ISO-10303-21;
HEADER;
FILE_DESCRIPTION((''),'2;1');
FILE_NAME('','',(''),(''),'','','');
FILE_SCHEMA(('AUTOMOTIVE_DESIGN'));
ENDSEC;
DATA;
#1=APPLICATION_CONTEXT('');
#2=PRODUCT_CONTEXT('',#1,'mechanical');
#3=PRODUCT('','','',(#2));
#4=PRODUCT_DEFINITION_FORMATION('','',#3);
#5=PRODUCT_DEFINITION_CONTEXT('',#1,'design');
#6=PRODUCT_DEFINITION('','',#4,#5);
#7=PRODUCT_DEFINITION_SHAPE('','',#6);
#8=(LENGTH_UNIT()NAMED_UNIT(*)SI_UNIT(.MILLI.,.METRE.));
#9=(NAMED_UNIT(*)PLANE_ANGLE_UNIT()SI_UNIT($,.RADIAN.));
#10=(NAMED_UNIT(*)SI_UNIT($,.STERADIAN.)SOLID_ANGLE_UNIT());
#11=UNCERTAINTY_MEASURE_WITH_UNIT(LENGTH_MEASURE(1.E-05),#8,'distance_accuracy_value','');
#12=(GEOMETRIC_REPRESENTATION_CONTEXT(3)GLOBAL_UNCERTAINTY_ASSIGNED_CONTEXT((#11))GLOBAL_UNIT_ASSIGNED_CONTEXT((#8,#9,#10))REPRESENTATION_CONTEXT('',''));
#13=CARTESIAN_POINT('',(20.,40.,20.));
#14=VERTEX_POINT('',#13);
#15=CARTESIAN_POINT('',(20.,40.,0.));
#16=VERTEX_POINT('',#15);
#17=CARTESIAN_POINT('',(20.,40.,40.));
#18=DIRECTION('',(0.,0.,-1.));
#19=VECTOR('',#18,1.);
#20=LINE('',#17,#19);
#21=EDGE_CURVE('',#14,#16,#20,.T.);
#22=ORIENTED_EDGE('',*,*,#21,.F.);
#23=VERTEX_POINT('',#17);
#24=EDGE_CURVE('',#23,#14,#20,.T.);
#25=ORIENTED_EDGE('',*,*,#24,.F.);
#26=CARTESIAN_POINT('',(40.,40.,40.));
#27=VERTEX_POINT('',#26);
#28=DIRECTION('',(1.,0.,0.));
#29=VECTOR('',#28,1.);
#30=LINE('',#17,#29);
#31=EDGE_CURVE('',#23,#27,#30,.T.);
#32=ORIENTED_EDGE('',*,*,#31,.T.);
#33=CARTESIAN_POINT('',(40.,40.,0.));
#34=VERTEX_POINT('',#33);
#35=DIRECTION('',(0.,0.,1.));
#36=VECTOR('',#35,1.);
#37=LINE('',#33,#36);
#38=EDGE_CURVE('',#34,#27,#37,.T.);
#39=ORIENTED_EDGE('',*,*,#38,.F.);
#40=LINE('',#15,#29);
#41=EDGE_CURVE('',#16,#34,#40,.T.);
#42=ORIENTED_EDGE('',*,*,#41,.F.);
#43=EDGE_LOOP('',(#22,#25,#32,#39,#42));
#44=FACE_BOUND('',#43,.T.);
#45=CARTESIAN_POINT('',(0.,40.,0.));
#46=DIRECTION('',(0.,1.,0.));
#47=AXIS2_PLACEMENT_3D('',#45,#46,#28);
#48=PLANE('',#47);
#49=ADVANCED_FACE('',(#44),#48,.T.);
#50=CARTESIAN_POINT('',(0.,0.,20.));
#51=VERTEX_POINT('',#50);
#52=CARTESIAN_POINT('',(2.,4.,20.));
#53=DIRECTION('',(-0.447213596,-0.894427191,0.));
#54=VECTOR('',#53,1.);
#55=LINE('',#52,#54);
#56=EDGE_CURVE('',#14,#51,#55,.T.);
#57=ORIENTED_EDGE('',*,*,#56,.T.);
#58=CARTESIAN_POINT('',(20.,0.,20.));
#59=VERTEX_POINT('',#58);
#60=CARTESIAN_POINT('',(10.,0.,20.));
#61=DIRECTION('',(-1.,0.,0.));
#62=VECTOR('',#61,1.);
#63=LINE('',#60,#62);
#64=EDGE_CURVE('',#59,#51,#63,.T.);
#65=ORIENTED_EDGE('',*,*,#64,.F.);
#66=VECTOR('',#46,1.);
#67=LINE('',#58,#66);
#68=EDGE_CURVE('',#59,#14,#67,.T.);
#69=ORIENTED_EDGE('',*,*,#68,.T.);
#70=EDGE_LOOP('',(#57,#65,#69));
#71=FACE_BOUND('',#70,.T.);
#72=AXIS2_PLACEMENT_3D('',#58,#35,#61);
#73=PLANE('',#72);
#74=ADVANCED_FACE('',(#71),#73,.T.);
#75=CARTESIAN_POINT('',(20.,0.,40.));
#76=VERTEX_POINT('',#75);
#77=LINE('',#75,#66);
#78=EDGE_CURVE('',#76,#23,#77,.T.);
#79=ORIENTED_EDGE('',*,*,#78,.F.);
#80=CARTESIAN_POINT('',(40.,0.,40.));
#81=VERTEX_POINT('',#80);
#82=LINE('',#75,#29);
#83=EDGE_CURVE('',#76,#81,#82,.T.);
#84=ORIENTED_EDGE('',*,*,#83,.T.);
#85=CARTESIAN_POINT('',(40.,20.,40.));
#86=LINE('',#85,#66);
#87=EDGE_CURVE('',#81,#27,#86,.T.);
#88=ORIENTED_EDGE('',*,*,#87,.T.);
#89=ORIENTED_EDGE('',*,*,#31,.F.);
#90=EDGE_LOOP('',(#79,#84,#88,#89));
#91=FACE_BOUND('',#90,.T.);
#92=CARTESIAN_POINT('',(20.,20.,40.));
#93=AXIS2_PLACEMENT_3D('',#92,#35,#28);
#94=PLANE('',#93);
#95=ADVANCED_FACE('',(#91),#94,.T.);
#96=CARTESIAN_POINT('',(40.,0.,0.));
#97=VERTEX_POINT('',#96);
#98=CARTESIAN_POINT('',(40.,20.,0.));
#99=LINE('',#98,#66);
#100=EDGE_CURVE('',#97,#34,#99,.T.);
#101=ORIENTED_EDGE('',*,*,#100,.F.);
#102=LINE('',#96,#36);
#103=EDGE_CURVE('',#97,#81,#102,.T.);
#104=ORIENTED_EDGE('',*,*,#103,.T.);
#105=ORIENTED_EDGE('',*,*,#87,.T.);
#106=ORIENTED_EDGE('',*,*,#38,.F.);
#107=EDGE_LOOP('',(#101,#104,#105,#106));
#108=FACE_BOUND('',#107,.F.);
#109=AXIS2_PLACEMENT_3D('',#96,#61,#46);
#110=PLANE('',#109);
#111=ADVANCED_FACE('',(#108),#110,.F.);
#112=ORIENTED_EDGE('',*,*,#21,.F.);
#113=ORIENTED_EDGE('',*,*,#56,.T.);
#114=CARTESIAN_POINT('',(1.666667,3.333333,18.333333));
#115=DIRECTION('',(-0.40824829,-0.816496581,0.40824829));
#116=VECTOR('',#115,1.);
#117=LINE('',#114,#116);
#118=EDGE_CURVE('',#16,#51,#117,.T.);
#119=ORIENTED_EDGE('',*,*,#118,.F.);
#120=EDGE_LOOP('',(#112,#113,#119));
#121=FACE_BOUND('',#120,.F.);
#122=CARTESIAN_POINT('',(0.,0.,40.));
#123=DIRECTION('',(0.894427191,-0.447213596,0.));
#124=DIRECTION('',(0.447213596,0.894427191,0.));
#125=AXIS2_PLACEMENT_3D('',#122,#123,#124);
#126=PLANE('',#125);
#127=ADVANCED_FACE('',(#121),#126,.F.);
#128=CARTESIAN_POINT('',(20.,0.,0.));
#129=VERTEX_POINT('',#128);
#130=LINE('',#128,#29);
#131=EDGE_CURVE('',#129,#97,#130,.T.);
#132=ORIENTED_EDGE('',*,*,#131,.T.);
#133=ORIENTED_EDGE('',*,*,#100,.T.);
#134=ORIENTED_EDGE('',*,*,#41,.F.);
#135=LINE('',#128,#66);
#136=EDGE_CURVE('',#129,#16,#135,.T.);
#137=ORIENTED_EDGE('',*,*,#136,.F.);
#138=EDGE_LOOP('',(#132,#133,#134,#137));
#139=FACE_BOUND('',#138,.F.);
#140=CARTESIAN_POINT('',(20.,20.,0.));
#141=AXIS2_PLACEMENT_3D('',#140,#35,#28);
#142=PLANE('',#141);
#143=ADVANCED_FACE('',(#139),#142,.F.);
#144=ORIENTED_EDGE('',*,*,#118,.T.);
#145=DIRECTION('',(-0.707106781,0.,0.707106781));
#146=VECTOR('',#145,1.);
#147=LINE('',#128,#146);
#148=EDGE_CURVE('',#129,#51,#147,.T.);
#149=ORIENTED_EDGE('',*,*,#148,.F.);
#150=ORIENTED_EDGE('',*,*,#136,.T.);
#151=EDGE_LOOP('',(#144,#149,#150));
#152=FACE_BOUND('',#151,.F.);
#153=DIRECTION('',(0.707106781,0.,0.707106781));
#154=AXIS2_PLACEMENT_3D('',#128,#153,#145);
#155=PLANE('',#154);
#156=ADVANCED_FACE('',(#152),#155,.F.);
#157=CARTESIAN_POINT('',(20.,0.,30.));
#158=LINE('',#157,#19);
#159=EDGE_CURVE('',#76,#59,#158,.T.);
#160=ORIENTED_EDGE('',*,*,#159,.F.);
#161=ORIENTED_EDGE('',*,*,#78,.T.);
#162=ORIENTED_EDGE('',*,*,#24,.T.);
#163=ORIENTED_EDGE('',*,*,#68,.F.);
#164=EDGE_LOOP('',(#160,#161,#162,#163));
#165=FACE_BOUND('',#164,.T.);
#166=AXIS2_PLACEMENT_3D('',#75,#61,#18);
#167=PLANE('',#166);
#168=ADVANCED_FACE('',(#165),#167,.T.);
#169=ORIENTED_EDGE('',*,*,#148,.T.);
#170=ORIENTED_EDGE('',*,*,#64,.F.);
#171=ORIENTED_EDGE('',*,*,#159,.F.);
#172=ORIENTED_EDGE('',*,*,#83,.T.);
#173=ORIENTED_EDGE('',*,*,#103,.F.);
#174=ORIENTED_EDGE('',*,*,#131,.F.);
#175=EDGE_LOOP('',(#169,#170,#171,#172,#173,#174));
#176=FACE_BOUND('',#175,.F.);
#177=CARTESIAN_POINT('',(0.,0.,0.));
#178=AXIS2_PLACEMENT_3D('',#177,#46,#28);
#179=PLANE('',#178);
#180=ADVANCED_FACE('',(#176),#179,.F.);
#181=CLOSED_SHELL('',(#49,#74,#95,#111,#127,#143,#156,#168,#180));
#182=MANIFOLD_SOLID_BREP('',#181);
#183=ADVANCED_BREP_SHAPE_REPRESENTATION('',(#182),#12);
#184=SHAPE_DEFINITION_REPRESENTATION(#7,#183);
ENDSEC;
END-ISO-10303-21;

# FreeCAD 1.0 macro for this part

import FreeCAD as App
import Part
import Sketcher

V = App.Vector
Q = App.Units.Quantity

doc = App.newDocument("Part")
body = doc.addObject("PartDesign::Body", "Body")

sketch1 = body.newObject("Sketcher::SketchObject", "Sketch")
sketch1.AttachmentSupport = (doc.getObject("XY_Plane"), [""])
sketch1.MapMode = "FlatFace"
sketch1.addGeometry(Part.LineSegment(V(0, 40, 0), V(0, 0, 0)), False)
sketch1.addGeometry(Part.LineSegment(V(0, 0, 0), V(40, 0, 0)), False)
sketch1.addGeometry(Part.LineSegment(V(40, 0, 0), V(40, 40, 0)), False)
sketch1.addGeometry(Part.LineSegment(V(40, 40, 0), V(0, 40, 0)), False)
sketch1.addConstraint(Sketcher.Constraint("Coincident", 0, 2, 1, 1))
sketch1.addConstraint(Sketcher.Constraint("Coincident", 1, 2, 2, 1))
sketch1.addConstraint(Sketcher.Constraint("Coincident", 2, 2, 3, 1))
sketch1.addConstraint(Sketcher.Constraint("Coincident", 3, 2, 0, 1))
sketch1.addConstraint(Sketcher.Constraint("Vertical", 0))
sketch1.addConstraint(Sketcher.Constraint("Horizontal", 1))
sketch1.addConstraint(Sketcher.Constraint("Vertical", 2))
sketch1.addConstraint(Sketcher.Constraint("Horizontal", 3))
sketch1.addConstraint(Sketcher.Constraint("Coincident", 0, 2, -1, 1))
sketch1.addConstraint(Sketcher.Constraint("Equal", 3, 0))
sketch1.addConstraint(Sketcher.Constraint("DistanceX", 1, 1, 1, 2, Q("40 mm")))
pad1 = body.newObject("PartDesign::Pad", "Pad")
pad1.Profile = sketch1
pad1.Length = 40

sketch2 = body.newObject("Sketcher::SketchObject", "Sketch001")
sketch2.AttachmentSupport = (doc.getObject("XY_Plane"), [""])
sketch2.MapMode = "FlatFace"
sketch2.AttachmentOffset = App.Placement(V(0, 0, 40), App.Rotation())
sketch2.addGeometry(Part.LineSegment(V(0, 0, 0), V(20, 40, 0)), False)
sketch2.addGeometry(Part.LineSegment(V(20, 40, 0), V(0, 40, 0)), False)
sketch2.addGeometry(Part.LineSegment(V(0, 40, 0), V(0, 0, 0)), False)
sketch2.addConstraint(Sketcher.Constraint("Coincident", 0, 2, 1, 1))
sketch2.addConstraint(Sketcher.Constraint("Coincident", 1, 2, 2, 1))
sketch2.addConstraint(Sketcher.Constraint("Coincident", 2, 2, 0, 1))
sketch2.addConstraint(Sketcher.Constraint("Horizontal", 1))
sketch2.addConstraint(Sketcher.Constraint("Vertical", 2))
sketch2.addConstraint(Sketcher.Constraint("Coincident", 2, 2, -1, 1))
sketch2.addConstraint(Sketcher.Constraint("DistanceX", 1, 2, 1, 1, Q("20 mm")))
sketch2.addConstraint(Sketcher.Constraint("DistanceY", 2, 2, 2, 1, Q("40 mm")))
pocket1 = body.newObject("PartDesign::Pocket", "Pocket")
pocket1.Profile = sketch2
pocket1.Length = 40

sketch3 = body.newObject("Sketcher::SketchObject", "Sketch002")
sketch3.AttachmentSupport = (doc.getObject("XZ_Plane"), [""])
sketch3.MapMode = "FlatFace"
sketch3.addGeometry(Part.LineSegment(V(20, 20, 0), V(20, 40, 0)), False)
sketch3.addGeometry(Part.LineSegment(V(20, 40, 0), V(0, 40, 0)), False)
sketch3.addGeometry(Part.LineSegment(V(0, 40, 0), V(0, 20, 0)), False)
sketch3.addGeometry(Part.LineSegment(V(0, 20, 0), V(20, 20, 0)), False)
sketch3.addConstraint(Sketcher.Constraint("Coincident", 0, 2, 1, 1))
sketch3.addConstraint(Sketcher.Constraint("Coincident", 1, 2, 2, 1))
sketch3.addConstraint(Sketcher.Constraint("Coincident", 2, 2, 3, 1))
sketch3.addConstraint(Sketcher.Constraint("Coincident", 3, 2, 0, 1))
sketch3.addConstraint(Sketcher.Constraint("Vertical", 0))
sketch3.addConstraint(Sketcher.Constraint("Horizontal", 1))
sketch3.addConstraint(Sketcher.Constraint("Vertical", 2))
sketch3.addConstraint(Sketcher.Constraint("Horizontal", 3))
sketch3.addConstraint(Sketcher.Constraint("PointOnObject", 1, 2, -2))
sketch3.addConstraint(Sketcher.Constraint("Equal", 3, 0))
sketch3.addConstraint(Sketcher.Constraint("DistanceX", 1, 2, 1, 1, Q("20 mm")))
sketch3.addConstraint(Sketcher.Constraint("DistanceY", -1, 1, 0, 2, Q("40 mm")))
pocket2 = body.newObject("PartDesign::Pocket", "Pocket001")
pocket2.Profile = sketch3
pocket2.Length = 40

sketch4 = body.newObject("Sketcher::SketchObject", "Sketch003")
sketch4.AttachmentSupport = (doc.getObject("XZ_Plane"), [""])
sketch4.MapMode = "FlatFace"
sketch4.addGeometry(Part.LineSegment(V(20, 0, 0), V(0, 20, 0)), False)
sketch4.addGeometry(Part.LineSegment(V(0, 20, 0), V(0, 0, 0)), False)
sketch4.addGeometry(Part.LineSegment(V(0, 0, 0), V(20, 0, 0)), False)
sketch4.addConstraint(Sketcher.Constraint("Coincident", 0, 2, 1, 1))
sketch4.addConstraint(Sketcher.Constraint("Coincident", 1, 2, 2, 1))
sketch4.addConstraint(Sketcher.Constraint("Coincident", 2, 2, 0, 1))
sketch4.addConstraint(Sketcher.Constraint("Vertical", 1))
sketch4.addConstraint(Sketcher.Constraint("Horizontal", 2))
sketch4.addConstraint(Sketcher.Constraint("Coincident", 1, 2, -1, 1))
sketch4.addConstraint(Sketcher.Constraint("Equal", 2, 1))
sketch4.addConstraint(Sketcher.Constraint("DistanceX", 2, 1, 2, 2, Q("20 mm")))
pocket3 = body.newObject("PartDesign::Pocket", "Pocket002")
pocket3.Profile = sketch4
pocket3.Length = 40

doc.recompute()
